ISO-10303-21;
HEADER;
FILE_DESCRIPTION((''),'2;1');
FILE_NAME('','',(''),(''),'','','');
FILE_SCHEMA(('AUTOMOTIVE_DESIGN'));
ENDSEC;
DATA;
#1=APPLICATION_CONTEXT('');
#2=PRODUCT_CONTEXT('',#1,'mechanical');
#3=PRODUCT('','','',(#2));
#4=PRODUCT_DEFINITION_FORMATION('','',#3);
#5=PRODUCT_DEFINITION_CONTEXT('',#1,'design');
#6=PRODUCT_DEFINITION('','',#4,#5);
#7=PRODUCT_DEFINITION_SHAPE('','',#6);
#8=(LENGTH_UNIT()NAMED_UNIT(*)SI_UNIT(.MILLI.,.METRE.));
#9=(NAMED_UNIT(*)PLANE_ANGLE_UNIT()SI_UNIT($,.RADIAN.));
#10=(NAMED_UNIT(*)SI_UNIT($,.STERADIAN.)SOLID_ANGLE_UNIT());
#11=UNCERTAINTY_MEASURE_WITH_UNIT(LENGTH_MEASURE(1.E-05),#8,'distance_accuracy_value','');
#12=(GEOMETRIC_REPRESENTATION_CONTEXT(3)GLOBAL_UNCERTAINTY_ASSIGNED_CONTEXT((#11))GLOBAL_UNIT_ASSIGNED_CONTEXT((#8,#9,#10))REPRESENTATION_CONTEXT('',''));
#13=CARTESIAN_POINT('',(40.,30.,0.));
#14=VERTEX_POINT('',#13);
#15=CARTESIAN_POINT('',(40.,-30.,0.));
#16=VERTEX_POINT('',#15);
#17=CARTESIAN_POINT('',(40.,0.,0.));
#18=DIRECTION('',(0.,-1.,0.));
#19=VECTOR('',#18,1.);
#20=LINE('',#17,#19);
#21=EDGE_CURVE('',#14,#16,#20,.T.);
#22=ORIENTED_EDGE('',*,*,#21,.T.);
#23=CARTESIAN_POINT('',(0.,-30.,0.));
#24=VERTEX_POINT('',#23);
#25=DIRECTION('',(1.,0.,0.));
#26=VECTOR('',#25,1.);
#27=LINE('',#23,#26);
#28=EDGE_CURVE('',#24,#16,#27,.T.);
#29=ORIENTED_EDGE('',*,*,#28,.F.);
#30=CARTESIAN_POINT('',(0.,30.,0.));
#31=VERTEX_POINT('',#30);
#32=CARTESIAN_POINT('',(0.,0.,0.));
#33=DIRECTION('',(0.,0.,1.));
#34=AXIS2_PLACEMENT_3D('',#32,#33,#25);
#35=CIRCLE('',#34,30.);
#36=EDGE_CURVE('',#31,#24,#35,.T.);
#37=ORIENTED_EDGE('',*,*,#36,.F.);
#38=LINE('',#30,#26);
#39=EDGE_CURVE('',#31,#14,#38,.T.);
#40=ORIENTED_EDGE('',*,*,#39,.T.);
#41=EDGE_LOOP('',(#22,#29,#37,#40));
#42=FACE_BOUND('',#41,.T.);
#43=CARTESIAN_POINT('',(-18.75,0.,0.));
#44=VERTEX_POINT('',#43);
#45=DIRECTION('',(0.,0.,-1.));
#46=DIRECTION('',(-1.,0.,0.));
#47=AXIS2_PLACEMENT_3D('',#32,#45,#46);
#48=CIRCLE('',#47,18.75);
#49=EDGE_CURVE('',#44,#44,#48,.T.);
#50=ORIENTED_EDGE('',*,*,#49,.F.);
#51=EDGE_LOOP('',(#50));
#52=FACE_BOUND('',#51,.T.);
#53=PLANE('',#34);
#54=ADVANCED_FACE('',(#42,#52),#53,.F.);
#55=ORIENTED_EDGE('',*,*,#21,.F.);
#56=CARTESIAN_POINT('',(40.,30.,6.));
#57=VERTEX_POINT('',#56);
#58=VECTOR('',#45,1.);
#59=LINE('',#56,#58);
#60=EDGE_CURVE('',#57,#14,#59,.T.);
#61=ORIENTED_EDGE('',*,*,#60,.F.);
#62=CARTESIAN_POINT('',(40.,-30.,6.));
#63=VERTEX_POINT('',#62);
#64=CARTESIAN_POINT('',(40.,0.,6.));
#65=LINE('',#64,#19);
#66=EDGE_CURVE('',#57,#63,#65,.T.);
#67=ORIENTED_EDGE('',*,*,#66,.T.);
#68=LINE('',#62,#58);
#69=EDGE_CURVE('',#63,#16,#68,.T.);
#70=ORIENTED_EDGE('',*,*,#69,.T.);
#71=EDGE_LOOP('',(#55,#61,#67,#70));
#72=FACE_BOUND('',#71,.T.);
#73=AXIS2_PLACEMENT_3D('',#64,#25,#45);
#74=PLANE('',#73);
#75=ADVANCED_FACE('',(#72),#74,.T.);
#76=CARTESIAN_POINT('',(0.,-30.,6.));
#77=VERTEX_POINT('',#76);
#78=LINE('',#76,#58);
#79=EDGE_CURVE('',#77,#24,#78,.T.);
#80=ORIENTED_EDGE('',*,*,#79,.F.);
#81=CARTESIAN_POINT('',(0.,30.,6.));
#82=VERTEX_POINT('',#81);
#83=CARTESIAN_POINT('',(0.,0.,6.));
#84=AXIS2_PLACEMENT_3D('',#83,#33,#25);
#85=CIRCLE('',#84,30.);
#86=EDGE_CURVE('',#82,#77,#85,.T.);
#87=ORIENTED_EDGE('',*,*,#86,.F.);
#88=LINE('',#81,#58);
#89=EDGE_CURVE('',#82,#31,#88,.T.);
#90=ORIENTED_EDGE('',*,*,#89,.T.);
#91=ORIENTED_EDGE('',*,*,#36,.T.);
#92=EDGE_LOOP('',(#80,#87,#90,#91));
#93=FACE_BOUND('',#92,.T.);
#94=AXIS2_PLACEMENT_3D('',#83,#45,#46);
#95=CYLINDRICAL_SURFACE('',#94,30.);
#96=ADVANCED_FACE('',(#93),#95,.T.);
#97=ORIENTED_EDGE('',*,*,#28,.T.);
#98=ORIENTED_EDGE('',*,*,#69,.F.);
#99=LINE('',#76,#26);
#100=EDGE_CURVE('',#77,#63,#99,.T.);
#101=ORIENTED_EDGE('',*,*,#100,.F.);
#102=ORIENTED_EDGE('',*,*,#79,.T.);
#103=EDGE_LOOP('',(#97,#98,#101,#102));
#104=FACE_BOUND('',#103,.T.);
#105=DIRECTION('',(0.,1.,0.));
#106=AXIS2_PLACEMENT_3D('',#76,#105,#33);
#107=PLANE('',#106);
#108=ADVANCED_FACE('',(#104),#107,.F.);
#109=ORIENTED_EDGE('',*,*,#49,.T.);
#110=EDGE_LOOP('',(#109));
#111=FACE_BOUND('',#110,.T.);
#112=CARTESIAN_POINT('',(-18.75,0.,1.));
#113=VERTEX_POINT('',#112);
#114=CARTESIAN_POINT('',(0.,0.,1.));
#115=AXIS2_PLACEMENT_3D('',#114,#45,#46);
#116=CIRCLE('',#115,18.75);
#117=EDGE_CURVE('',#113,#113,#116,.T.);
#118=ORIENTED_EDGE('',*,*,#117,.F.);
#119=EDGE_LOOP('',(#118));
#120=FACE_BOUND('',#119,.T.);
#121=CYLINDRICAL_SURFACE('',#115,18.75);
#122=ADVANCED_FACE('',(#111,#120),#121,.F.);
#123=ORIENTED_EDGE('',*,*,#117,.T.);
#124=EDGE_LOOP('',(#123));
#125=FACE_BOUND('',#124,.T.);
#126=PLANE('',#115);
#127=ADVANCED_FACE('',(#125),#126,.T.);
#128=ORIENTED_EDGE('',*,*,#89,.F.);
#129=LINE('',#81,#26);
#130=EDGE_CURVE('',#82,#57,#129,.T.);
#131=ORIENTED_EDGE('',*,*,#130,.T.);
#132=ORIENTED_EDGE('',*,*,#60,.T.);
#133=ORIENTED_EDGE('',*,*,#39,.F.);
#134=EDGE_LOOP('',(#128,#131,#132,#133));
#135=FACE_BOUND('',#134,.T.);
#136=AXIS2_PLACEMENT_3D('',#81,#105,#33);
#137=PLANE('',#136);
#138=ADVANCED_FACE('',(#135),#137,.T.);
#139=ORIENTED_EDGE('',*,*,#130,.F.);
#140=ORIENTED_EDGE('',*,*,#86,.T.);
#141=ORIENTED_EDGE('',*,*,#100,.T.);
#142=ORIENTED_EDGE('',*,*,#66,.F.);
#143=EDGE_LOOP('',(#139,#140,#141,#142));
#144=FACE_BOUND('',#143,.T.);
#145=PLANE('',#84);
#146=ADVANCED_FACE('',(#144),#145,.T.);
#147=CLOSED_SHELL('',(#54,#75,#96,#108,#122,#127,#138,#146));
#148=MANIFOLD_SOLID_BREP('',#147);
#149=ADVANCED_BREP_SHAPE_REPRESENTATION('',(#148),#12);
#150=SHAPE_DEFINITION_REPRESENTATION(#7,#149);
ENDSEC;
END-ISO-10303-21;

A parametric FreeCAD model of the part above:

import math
import FreeCAD as App
import Part
import Sketcher

V = App.Vector

doc = App.newDocument("Part")
body = doc.addObject("PartDesign::Body", "Body")

# Sketch on XY plane
sketch1 = body.newObject("Sketcher::SketchObject", "Sketch")
sketch1.AttachmentSupport = (doc.getObject("XY_Plane"), [""])
sketch1.MapMode = "FlatFace"
sketch1.addGeometry([
    Part.LineSegment(V(40, 30, 0), V(0, 30, 0)),
    Part.ArcOfCircle(Part.Circle(V(0, 0, 0), V(0, 0, 1), 30), math.radians(90), math.radians(270)),
    Part.LineSegment(V(0, -30, 0), V(40, -30, 0)),
    Part.LineSegment(V(40, -30, 0), V(40, 30, 0)),
], False)
sketch1.addConstraint([
    Sketcher.Constraint("Tangent", 0, 2, 1, 1),
    Sketcher.Constraint("Tangent", 1, 2, 2, 1),
    Sketcher.Constraint("Coincident", 2, 2, 3, 1),
    Sketcher.Constraint("Coincident", 3, 2, 0, 1),
    Sketcher.Constraint("Horizontal", 0),
    Sketcher.Constraint("Horizontal", 2),
    Sketcher.Constraint("Vertical", 3),
    Sketcher.Constraint("Coincident", 1, 3, -1, 1),
    Sketcher.Constraint("Radius", 1, 30.0),
    Sketcher.Constraint("DistanceX", 0, 2, 0, 1, 40.0),
])
pad1 = body.newObject("PartDesign::Pad", "Pad")
pad1.Profile = sketch1
pad1.Length = 6

# Sketch on XY plane
sketch2 = body.newObject("Sketcher::SketchObject", "Sketch001")
sketch2.AttachmentSupport = (doc.getObject("XY_Plane"), [""])
sketch2.MapMode = "FlatFace"
sketch2.addGeometry(Part.Circle(V(0, 0, 0), V(0, 0, 1), 19), False)
sketch2.addConstraint([
    Sketcher.Constraint("Coincident", 0, 3, -1, 1),
    Sketcher.Constraint("Diameter", 0, 37.5),
])
pocket1 = body.newObject("PartDesign::Pocket", "Pocket")
pocket1.Profile = sketch2
pocket1.Length = 1
pocket1.Reversed = True

doc.recompute()
